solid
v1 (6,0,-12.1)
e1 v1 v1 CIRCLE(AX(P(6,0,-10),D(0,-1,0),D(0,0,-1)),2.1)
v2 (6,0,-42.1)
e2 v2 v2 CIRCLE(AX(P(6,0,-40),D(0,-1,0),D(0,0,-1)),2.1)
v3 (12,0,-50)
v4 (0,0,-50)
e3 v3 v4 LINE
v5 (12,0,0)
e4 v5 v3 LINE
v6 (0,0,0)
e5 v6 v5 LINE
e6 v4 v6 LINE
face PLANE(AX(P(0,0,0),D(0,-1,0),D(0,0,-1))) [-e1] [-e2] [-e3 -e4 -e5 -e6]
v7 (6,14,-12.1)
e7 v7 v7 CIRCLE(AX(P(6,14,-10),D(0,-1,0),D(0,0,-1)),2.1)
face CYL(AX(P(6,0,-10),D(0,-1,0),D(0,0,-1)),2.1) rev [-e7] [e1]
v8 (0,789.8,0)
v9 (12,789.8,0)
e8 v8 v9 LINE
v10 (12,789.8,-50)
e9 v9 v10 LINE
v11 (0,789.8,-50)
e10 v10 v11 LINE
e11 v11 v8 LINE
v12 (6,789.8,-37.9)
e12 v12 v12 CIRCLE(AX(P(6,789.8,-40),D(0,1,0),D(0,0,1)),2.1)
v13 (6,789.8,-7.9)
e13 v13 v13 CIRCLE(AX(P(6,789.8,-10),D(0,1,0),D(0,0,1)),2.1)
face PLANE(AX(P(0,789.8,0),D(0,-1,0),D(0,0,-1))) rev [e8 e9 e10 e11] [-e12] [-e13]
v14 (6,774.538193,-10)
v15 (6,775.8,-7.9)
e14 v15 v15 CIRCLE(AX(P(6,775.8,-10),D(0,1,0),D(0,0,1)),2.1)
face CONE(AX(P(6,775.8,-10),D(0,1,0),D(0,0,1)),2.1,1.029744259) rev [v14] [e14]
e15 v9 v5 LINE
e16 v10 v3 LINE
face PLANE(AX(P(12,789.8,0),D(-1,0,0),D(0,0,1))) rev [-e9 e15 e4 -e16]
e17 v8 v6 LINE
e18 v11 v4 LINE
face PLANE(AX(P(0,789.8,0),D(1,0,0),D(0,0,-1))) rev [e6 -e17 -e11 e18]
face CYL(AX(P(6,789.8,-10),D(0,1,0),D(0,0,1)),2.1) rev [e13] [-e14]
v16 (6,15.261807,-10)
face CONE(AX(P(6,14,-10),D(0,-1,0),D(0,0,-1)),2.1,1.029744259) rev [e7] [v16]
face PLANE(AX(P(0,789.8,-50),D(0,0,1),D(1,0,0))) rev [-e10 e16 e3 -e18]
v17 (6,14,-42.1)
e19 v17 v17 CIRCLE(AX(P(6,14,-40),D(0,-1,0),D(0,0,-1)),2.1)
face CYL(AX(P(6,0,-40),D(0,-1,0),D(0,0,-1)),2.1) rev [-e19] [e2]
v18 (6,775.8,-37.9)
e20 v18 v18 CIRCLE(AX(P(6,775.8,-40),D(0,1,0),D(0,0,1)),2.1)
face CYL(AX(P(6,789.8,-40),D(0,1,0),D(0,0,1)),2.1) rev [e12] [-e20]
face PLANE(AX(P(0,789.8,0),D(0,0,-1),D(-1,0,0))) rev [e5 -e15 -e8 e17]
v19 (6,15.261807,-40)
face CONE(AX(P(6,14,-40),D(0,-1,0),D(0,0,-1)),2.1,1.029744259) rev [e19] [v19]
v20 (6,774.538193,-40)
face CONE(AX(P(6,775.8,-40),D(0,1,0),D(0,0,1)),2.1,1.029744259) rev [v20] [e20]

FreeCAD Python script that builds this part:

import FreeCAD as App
import Part
import Sketcher
Q = App.Units.Quantity

doc = App.newDocument("Part")
body = doc.addObject("PartDesign::Body", "Body")

# Sketch on XZ plane
sketch1 = doc.addObject("Sketcher::SketchObject", "Sketch")
body.addObject(sketch1)
sketch1.AttachmentSupport = (doc.XZ_Plane, [""])
sketch1.MapMode = "FlatFace"
sketch1.addGeometry(Part.LineSegment(App.Vector(0, -50, 0), App.Vector(0, 0, 0)), False)
sketch1.addGeometry(Part.LineSegment(App.Vector(0, 0, 0), App.Vector(12, 0, 0)), False)
sketch1.addGeometry(Part.LineSegment(App.Vector(12, 0, 0), App.Vector(12, -50, 0)), False)
sketch1.addGeometry(Part.LineSegment(App.Vector(12, -50, 0), App.Vector(0, -50, 0)), False)
sketch1.addConstraint(Sketcher.Constraint("Coincident", 0, 2, 1, 1))
sketch1.addConstraint(Sketcher.Constraint("Coincident", 1, 2, 2, 1))
sketch1.addConstraint(Sketcher.Constraint("Coincident", 2, 2, 3, 1))
sketch1.addConstraint(Sketcher.Constraint("Coincident", 3, 2, 0, 1))
sketch1.addConstraint(Sketcher.Constraint("Vertical", 0))
sketch1.addConstraint(Sketcher.Constraint("Horizontal", 1))
sketch1.addConstraint(Sketcher.Constraint("Vertical", 2))
sketch1.addConstraint(Sketcher.Constraint("Horizontal", 3))
sketch1.addConstraint(Sketcher.Constraint("Coincident", 0, 2, -1, 1))
sketch1.addConstraint(Sketcher.Constraint("DistanceX", 1, 1, 1, 2, 12.0))
sketch1.addConstraint(Sketcher.Constraint("DistanceY", 0, 1, 0, 2, 50.0))
pad1 = doc.addObject("PartDesign::Pad", "Pad")
body.addObject(pad1)
pad1.Profile = sketch1
pad1.Length = 789.8
pad1.Reversed = True

# Sketch on YZ plane
sketch2 = doc.addObject("Sketcher::SketchObject", "Sketch001")
body.addObject(sketch2)
sketch2.AttachmentSupport = (doc.YZ_Plane, [""])
sketch2.MapMode = "FlatFace"
sketch2.AttachmentOffset = App.Placement(App.Vector(0, 0, 6), App.Rotation())
sketch2.addGeometry(Part.LineSegment(App.Vector(15.3, -40, 0), App.Vector(0, -40, 0)), False)
sketch2.addGeometry(Part.LineSegment(App.Vector(0, -40, 0), App.Vector(0, -42.1, 0)), False)
sketch2.addGeometry(Part.LineSegment(App.Vector(0, -42.1, 0), App.Vector(14, -42.1, 0)), False)
sketch2.addGeometry(Part.LineSegment(App.Vector(14, -42.1, 0), App.Vector(15.3, -40, 0)), False)
sketch2.addGeometry(Part.LineSegment(App.Vector(0, -40, 0), App.Vector(15.3, -40, 0)), True)  # axis
sketch2.addConstraint(Sketcher.Constraint("Coincident", 0, 2, 1, 1))
sketch2.addConstraint(Sketcher.Constraint("Coincident", 1, 2, 2, 1))
sketch2.addConstraint(Sketcher.Constraint("Coincident", 2, 2, 3, 1))
sketch2.addConstraint(Sketcher.Constraint("Coincident", 3, 2, 0, 1))
sketch2.addConstraint(Sketcher.Constraint("Horizontal", 0))
sketch2.addConstraint(Sketcher.Constraint("Vertical", 1))
sketch2.addConstraint(Sketcher.Constraint("Horizontal", 2))
sketch2.addConstraint(Sketcher.Constraint("Horizontal", 4))
sketch2.addConstraint(Sketcher.Constraint("Coincident", 4, 1, 0, 2))
sketch2.addConstraint(Sketcher.Constraint("PointOnObject", 0, 2, -2))
sketch2.addConstraint(Sketcher.Constraint("Equal", 0, 4))
sketch2.addConstraint(Sketcher.Constraint("DistanceX", 2, 1, 2, 2, 14.0))
sketch2.addConstraint(Sketcher.Constraint("Angle", 3, Q("59 deg")))
sketch2.addConstraint(Sketcher.Constraint("DistanceY", 1, 2, 1, 1, 2.1))
sketch2.addConstraint(Sketcher.Constraint("DistanceY", 0, 2, -1, 1, 40.0))
groove = doc.addObject("PartDesign::Groove", "Groove")
body.addObject(groove)
groove.Profile = sketch2
groove.ReferenceAxis = (sketch2, ["Axis0"])
groove.Angle = 360
doc.recompute()

linearpattern = doc.addObject("PartDesign::LinearPattern", "LinearPattern")
body.addObject(linearpattern)
linearpattern.Originals = [groove]
linearpattern.Direction = (doc.Z_Axis, [""])
linearpattern.Mode = "offset"
linearpattern.Offset = 30
linearpattern.Occurrences = 2
body.Tip = linearpattern
doc.recompute()

datumplane = doc.addObject("PartDesign::Plane", "DatumPlane")
body.addObject(datumplane)
datumplane.AttachmentSupport = (doc.XZ_Plane, [""])
datumplane.MapMode = "FlatFace"
datumplane.AttachmentOffset = App.Placement(App.Vector(0, 0, -394.9), App.Rotation())
mirrored = doc.addObject("PartDesign::Mirrored", "Mirrored")
body.addObject(mirrored)
mirrored.Originals = [groove]
mirrored.MirrorPlane = (datumplane, [""])
body.Tip = mirrored

# Sketch on YZ plane
sketch3 = doc.addObject("Sketcher::SketchObject", "Sketch002")
body.addObject(sketch3)
sketch3.AttachmentSupport = (doc.YZ_Plane, [""])
sketch3.MapMode = "FlatFace"
sketch3.AttachmentOffset = App.Placement(App.Vector(0, 0, 6), App.Rotation())
sketch3.addGeometry(Part.LineSegment(App.Vector(789.8, -10, 0), App.Vector(774.5, -10, 0)), False)
sketch3.addGeometry(Part.LineSegment(App.Vector(774.5, -10, 0), App.Vector(775.8, -12.1, 0)), False)
sketch3.addGeometry(Part.LineSegment(App.Vector(775.8, -12.1, 0), App.Vector(789.8, -12.1, 0)), False)
sketch3.addGeometry(Part.LineSegment(App.Vector(789.8, -12.1, 0), App.Vector(789.8, -10, 0)), False)
sketch3.addGeometry(Part.LineSegment(App.Vector(774.5, -10, 0), App.Vector(789.8, -10, 0)), True)  # axis
sketch3.addConstraint(Sketcher.Constraint("Coincident", 0, 2, 1, 1))
sketch3.addConstraint(Sketcher.Constraint("Coincident", 1, 2, 2, 1))
sketch3.addConstraint(Sketcher.Constraint("Coincident", 2, 2, 3, 1))
sketch3.addConstraint(Sketcher.Constraint("Coincident", 3, 2, 0, 1))
sketch3.addConstraint(Sketcher.Constraint("Horizontal", 0))
sketch3.addConstraint(Sketcher.Constraint("Horizontal", 2))
sketch3.addConstraint(Sketcher.Constraint("Vertical", 3))
sketch3.addConstraint(Sketcher.Constraint("Horizontal", 4))
sketch3.addConstraint(Sketcher.Constraint("Coincident", 4, 1, 0, 2))
sketch3.addConstraint(Sketcher.Constraint("Vertical", 2, 2, 4, 2))
sketch3.addConstraint(Sketcher.Constraint("DistanceX", 2, 1, 2, 2, 14.0))
sketch3.addConstraint(Sketcher.Constraint("Angle", 1, Q("-59 deg")))
sketch3.addConstraint(Sketcher.Constraint("DistanceY", 3, 1, 3, 2, 2.1))
sketch3.addConstraint(Sketcher.Constraint("DistanceY", 0, 2, -1, 1, 10.0))
sketch3.addConstraint(Sketcher.Constraint("DistanceX", -1, 1, 1, 2, 775.8))
groove2 = doc.addObject("PartDesign::Groove", "Groove001")
body.addObject(groove2)
groove2.Profile = sketch3
groove2.ReferenceAxis = (sketch3, ["Axis0"])
groove2.Angle = 360

doc.recompute()
